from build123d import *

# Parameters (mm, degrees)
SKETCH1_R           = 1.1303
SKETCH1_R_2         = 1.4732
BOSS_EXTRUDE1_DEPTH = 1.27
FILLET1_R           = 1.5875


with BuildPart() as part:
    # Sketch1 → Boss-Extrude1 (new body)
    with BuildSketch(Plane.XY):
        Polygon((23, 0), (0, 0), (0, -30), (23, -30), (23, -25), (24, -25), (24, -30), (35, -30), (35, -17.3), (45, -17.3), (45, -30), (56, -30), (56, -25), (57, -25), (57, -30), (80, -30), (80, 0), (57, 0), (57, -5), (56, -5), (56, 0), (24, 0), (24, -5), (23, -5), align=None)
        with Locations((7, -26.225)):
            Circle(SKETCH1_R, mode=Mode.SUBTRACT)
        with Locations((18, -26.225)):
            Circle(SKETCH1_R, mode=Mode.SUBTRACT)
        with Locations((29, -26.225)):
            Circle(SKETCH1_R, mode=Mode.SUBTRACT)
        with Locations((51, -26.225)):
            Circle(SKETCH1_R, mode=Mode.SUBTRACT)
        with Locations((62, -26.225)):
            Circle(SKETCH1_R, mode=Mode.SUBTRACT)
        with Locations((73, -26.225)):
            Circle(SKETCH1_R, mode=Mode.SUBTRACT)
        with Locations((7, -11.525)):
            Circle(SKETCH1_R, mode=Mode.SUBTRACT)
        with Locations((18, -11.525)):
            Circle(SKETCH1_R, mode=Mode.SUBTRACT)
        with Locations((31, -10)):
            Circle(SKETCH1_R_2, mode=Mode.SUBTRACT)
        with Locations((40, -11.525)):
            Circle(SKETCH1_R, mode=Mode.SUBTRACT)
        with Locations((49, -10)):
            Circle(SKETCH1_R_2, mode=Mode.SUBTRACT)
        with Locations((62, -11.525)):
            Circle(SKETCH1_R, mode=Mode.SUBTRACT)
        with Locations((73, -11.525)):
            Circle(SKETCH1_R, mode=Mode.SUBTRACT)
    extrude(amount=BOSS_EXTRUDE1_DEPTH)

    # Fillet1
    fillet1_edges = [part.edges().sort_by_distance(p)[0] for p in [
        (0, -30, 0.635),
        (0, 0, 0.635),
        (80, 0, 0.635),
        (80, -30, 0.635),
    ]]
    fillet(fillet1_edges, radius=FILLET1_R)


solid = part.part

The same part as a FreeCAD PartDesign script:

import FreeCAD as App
import Part
import Sketcher
from FreeCAD import Vector


def edges_at(feature, points):
    """Names of the edges that pass closest to the given points."""
    edges = feature.Shape.Edges
    near = lambda p: min(range(len(edges)), key=lambda i: edges[i].distToShape(Part.Vertex(*p))[0])
    return sorted({f"Edge{near(p) + 1}" for p in points})

doc = App.newDocument("Part")
params = doc.addObject("Spreadsheet::Sheet", "Params")
for row, (alias, value) in enumerate([
    ("sketch1_width", "23 mm"),
    ("sketch1_width2", "1 mm"),
    ("sketch1_width3", "11 mm"),
    ("sketch1_width4", "10 mm"),
    ("sketch1_height", "30 mm"),
    ("pad1_length", "1.27 mm"),
    ("fillet_radius", "1.5875 mm"),
], start=1):
    params.set(f"A{row}", alias)
    params.set(f"B{row}", "=" + value)
    params.setAlias(f"B{row}", alias)

body = doc.addObject("PartDesign::Body", "Body")

# Sketch on XY plane
sketch1 = body.newObject("Sketcher::SketchObject", "Sketch")
sketch1.AttachmentSupport = (doc.getObject("XY_Plane"), [""])
sketch1.MapMode = "FlatFace"
sketch1.addGeometry([
    Part.LineSegment(Vector(23, 0, 0), Vector(0, 0, 0)),  # 0
    Part.LineSegment(Vector(0, 0, 0), Vector(0, -30, 0)),  # 1
    Part.LineSegment(Vector(0, -30, 0), Vector(23, -30, 0)),  # 2
    Part.LineSegment(Vector(23, -30, 0), Vector(23, -25, 0)),  # 3
    Part.LineSegment(Vector(23, -25, 0), Vector(24, -25, 0)),  # 4
    Part.LineSegment(Vector(24, -25, 0), Vector(24, -30, 0)),  # 5
    Part.LineSegment(Vector(24, -30, 0), Vector(35, -30, 0)),  # 6
    Part.LineSegment(Vector(35, -30, 0), Vector(35, -17.3, 0)),  # 7
    Part.LineSegment(Vector(35, -17.3, 0), Vector(45, -17.3, 0)),  # 8
    Part.LineSegment(Vector(45, -17.3, 0), Vector(45, -30, 0)),  # 9
    Part.LineSegment(Vector(45, -30, 0), Vector(56, -30, 0)),  # 10
    Part.LineSegment(Vector(56, -30, 0), Vector(56, -25, 0)),  # 11
    Part.LineSegment(Vector(56, -25, 0), Vector(57, -25, 0)),  # 12
    Part.LineSegment(Vector(57, -25, 0), Vector(57, -30, 0)),  # 13
    Part.LineSegment(Vector(57, -30, 0), Vector(80, -30, 0)),  # 14
    Part.LineSegment(Vector(80, -30, 0), Vector(80, 0, 0)),  # 15
    Part.LineSegment(Vector(80, 0, 0), Vector(57, 0, 0)),  # 16
    Part.LineSegment(Vector(57, 0, 0), Vector(57, -5, 0)),  # 17
    Part.LineSegment(Vector(57, -5, 0), Vector(56, -5, 0)),  # 18
    Part.LineSegment(Vector(56, -5, 0), Vector(56, 0, 0)),  # 19
    Part.LineSegment(Vector(56, 0, 0), Vector(24, 0, 0)),  # 20
    Part.LineSegment(Vector(24, 0, 0), Vector(24, -5, 0)),  # 21
    Part.LineSegment(Vector(24, -5, 0), Vector(23, -5, 0)),  # 22
    Part.LineSegment(Vector(23, -5, 0), Vector(23, 0, 0)),  # 23
    Part.Circle(Vector(7, -26.2, 0), Vector(0, 0, 1), 1.1),  # 24
    Part.Circle(Vector(18, -26.2, 0), Vector(0, 0, 1), 1.1),  # 25
    Part.Circle(Vector(29, -26.2, 0), Vector(0, 0, 1), 1.1),  # 26
    Part.Circle(Vector(51, -26.2, 0), Vector(0, 0, 1), 1.1),  # 27
    Part.Circle(Vector(62, -26.2, 0), Vector(0, 0, 1), 1.1),  # 28
    Part.Circle(Vector(73, -26.2, 0), Vector(0, 0, 1), 1.1),  # 29
    Part.Circle(Vector(7, -11.5, 0), Vector(0, 0, 1), 1.1),  # 30
    Part.Circle(Vector(18, -11.5, 0), Vector(0, 0, 1), 1.1),  # 31
    Part.Circle(Vector(40, -11.5, 0), Vector(0, 0, 1), 1.1),  # 32
    Part.Circle(Vector(31, -10, 0), Vector(0, 0, 1), 1.5),  # 33
    Part.Circle(Vector(49, -10, 0), Vector(0, 0, 1), 1.5),  # 34
    Part.Circle(Vector(62, -11.5, 0), Vector(0, 0, 1), 1.1),  # 35
    Part.Circle(Vector(73, -11.5, 0), Vector(0, 0, 1), 1.1),  # 36
], False)
sketch1.addConstraint([
    Sketcher.Constraint("Coincident", 0, 2, 1, 1),
    Sketcher.Constraint("Coincident", 1, 2, 2, 1),
    Sketcher.Constraint("Coincident", 2, 2, 3, 1),
    Sketcher.Constraint("Coincident", 3, 2, 4, 1),
    Sketcher.Constraint("Coincident", 4, 2, 5, 1),
    Sketcher.Constraint("Coincident", 5, 2, 6, 1),
    Sketcher.Constraint("Coincident", 6, 2, 7, 1),
    Sketcher.Constraint("Coincident", 7, 2, 8, 1),
    Sketcher.Constraint("Coincident", 8, 2, 9, 1),
    Sketcher.Constraint("Coincident", 9, 2, 10, 1),
    Sketcher.Constraint("Coincident", 10, 2, 11, 1),
    Sketcher.Constraint("Coincident", 11, 2, 12, 1),
    Sketcher.Constraint("Coincident", 12, 2, 13, 1),
    Sketcher.Constraint("Coincident", 13, 2, 14, 1),
    Sketcher.Constraint("Coincident", 14, 2, 15, 1),
    Sketcher.Constraint("Coincident", 15, 2, 16, 1),
    Sketcher.Constraint("Coincident", 16, 2, 17, 1),
    Sketcher.Constraint("Coincident", 17, 2, 18, 1),
    Sketcher.Constraint("Coincident", 18, 2, 19, 1),
    Sketcher.Constraint("Coincident", 19, 2, 20, 1),
    Sketcher.Constraint("Coincident", 20, 2, 21, 1),
    Sketcher.Constraint("Coincident", 21, 2, 22, 1),
    Sketcher.Constraint("Coincident", 22, 2, 23, 1),
    Sketcher.Constraint("Coincident", 23, 2, 0, 1),
    Sketcher.Constraint("Horizontal", 0),
    Sketcher.Constraint("Vertical", 1),
    Sketcher.Constraint("Horizontal", 2),
    Sketcher.Constraint("Vertical", 3),
    Sketcher.Constraint("Horizontal", 4),
    Sketcher.Constraint("Vertical", 5),
    Sketcher.Constraint("Horizontal", 6),
    Sketcher.Constraint("Vertical", 7),
    Sketcher.Constraint("Horizontal", 8),
    Sketcher.Constraint("Vertical", 9),
    Sketcher.Constraint("Horizontal", 10),
    Sketcher.Constraint("Vertical", 11),
    Sketcher.Constraint("Horizontal", 12),
    Sketcher.Constraint("Vertical", 13),
    Sketcher.Constraint("Horizontal", 14),
    Sketcher.Constraint("Vertical", 15),
    Sketcher.Constraint("Horizontal", 16),
    Sketcher.Constraint("Vertical", 17),
    Sketcher.Constraint("Horizontal", 18),
    Sketcher.Constraint("Vertical", 19),
    Sketcher.Constraint("Horizontal", 20),
    Sketcher.Constraint("Vertical", 21),
    Sketcher.Constraint("Horizontal", 22),
    Sketcher.Constraint("Vertical", 23),
    Sketcher.Constraint("Coincident", 0, 2, -1, 1),
    Sketcher.Constraint("Equal", 24, 25),
    Sketcher.Constraint("Equal", 25, 26),
    Sketcher.Constraint("Equal", 26, 27),
    Sketcher.Constraint("Equal", 27, 28),
    Sketcher.Constraint("Equal", 28, 29),
    Sketcher.Constraint("Equal", 29, 30),
    Sketcher.Constraint("Equal", 30, 31),
    Sketcher.Constraint("Equal", 31, 32),
    Sketcher.Constraint("Equal", 33, 34),
    Sketcher.Constraint("Equal", 32, 35),
    Sketcher.Constraint("Equal", 35, 36),
    Sketcher.Constraint("PointOnObject", 15, 2, -1),
    Sketcher.Constraint("PointOnObject", 19, 2, -1),
    Sketcher.Constraint("Horizontal", 24, 3, 25, 3),
    Sketcher.Constraint("Horizontal", 25, 3, 26, 3),
    Sketcher.Constraint("Horizontal", 26, 3, 27, 3),
    Sketcher.Constraint("Horizontal", 27, 3, 28, 3),
    Sketcher.Constraint("Horizontal", 28, 3, 29, 3),
    Sketcher.Constraint("Horizontal", 30, 3, 31, 3),
    Sketcher.Constraint("Horizontal", 31, 3, 32, 3),
    Sketcher.Constraint("Horizontal", 33, 3, 34, 3),
    Sketcher.Constraint("Horizontal", 32, 3, 35, 3),
    Sketcher.Constraint("Horizontal", 35, 3, 36, 3),
    Sketcher.Constraint("Horizontal", 2, 2, 5, 2),
    Sketcher.Constraint("Horizontal", 6, 2, 9, 2),
    Sketcher.Constraint("Horizontal", 4, 2, 11, 2),
    Sketcher.Constraint("Horizontal", 10, 2, 13, 2),
    Sketcher.Constraint("Horizontal", 18, 2, 21, 2),
    Sketcher.Constraint("Vertical", 24, 3, 30, 3),
    Sketcher.Constraint("Vertical", 25, 3, 31, 3),
    Sketcher.Constraint("Vertical", 28, 3, 35, 3),
    Sketcher.Constraint("Vertical", 29, 3, 36, 3),
    Sketcher.Constraint("Vertical", 13, 2, 16, 2),
    Sketcher.Constraint("Vertical", 11, 2, 18, 2),
    Sketcher.Constraint("Vertical", 5, 2, 20, 2),
    Sketcher.Constraint("Vertical", 3, 2, 22, 2),
    Sketcher.Constraint("Equal", 6, 10),
    Sketcher.Constraint("Equal", 4, 12),
    Sketcher.Constraint("Equal", 2, 14),
    Sketcher.Constraint("Equal", 13, 17),
    Sketcher.Constraint("DistanceX", 0, 2, 0, 1, 23.0),
    Sketcher.Constraint("DistanceX", 4, 1, 4, 2, 1.0),
    Sketcher.Constraint("DistanceX", 6, 1, 6, 2, 11.0),
    Sketcher.Constraint("DistanceX", 8, 1, 8, 2, 10.0),
    Sketcher.Constraint("DistanceY", 1, 2, 1, 1, 30.0),
    Sketcher.Constraint("DistanceY", 3, 1, 3, 2, 5.0),
    Sketcher.Constraint("DistanceY", 7, 1, 7, 2, 12.7),
    Sketcher.Constraint("DistanceX", -1, 1, 24, 3, 7.0),
    Sketcher.Constraint("DistanceX", -1, 1, 25, 3, 18.0),
    Sketcher.Constraint("DistanceX", -1, 1, 26, 3, 29.0),
    Sketcher.Constraint("DistanceX", -1, 1, 27, 3, 51.0),
    Sketcher.Constraint("DistanceX", -1, 1, 28, 3, 62.0),
    Sketcher.Constraint("DistanceX", -1, 1, 29, 3, 73.0),
    Sketcher.Constraint("DistanceX", -1, 1, 32, 3, 40.0),
    Sketcher.Constraint("DistanceX", -1, 1, 33, 3, 31.0),
    Sketcher.Constraint("DistanceY", 33, 3, -1, 1, 10.0),
    Sketcher.Constraint("DistanceX", -1, 1, 34, 3, 49.0),
    Sketcher.Constraint("Diameter", 24, 2.2606),
    Sketcher.Constraint("Diameter", 33, 2.9464),
    Sketcher.Constraint("DistanceY", 24, 3, 30, 3, 14.7),
    Sketcher.Constraint("DistanceY", 24, 3, -1, 1, 26.225),
])
sketch1.setExpression("Constraints[89]", "Params.sketch1_width")
sketch1.setExpression("Constraints[90]", "Params.sketch1_width2")
sketch1.setExpression("Constraints[91]", "Params.sketch1_width3")
sketch1.setExpression("Constraints[92]", "Params.sketch1_width4")
sketch1.setExpression("Constraints[93]", "Params.sketch1_height")
pad1 = body.newObject("PartDesign::Pad", "Pad")
pad1.Profile = sketch1
pad1.setExpression("Length", "Params.pad1_length")
doc.recompute()

fillet = body.newObject("PartDesign::Fillet", "Fillet")
fillet.Base = (pad1, edges_at(pad1, [
    (0, -30, 0.635),
    (0, 0, 0.635),
    (80, 0, 0.635),
    (80, -30, 0.635),
]))
fillet.setExpression("Radius", "Params.fillet_radius")

doc.recompute()
